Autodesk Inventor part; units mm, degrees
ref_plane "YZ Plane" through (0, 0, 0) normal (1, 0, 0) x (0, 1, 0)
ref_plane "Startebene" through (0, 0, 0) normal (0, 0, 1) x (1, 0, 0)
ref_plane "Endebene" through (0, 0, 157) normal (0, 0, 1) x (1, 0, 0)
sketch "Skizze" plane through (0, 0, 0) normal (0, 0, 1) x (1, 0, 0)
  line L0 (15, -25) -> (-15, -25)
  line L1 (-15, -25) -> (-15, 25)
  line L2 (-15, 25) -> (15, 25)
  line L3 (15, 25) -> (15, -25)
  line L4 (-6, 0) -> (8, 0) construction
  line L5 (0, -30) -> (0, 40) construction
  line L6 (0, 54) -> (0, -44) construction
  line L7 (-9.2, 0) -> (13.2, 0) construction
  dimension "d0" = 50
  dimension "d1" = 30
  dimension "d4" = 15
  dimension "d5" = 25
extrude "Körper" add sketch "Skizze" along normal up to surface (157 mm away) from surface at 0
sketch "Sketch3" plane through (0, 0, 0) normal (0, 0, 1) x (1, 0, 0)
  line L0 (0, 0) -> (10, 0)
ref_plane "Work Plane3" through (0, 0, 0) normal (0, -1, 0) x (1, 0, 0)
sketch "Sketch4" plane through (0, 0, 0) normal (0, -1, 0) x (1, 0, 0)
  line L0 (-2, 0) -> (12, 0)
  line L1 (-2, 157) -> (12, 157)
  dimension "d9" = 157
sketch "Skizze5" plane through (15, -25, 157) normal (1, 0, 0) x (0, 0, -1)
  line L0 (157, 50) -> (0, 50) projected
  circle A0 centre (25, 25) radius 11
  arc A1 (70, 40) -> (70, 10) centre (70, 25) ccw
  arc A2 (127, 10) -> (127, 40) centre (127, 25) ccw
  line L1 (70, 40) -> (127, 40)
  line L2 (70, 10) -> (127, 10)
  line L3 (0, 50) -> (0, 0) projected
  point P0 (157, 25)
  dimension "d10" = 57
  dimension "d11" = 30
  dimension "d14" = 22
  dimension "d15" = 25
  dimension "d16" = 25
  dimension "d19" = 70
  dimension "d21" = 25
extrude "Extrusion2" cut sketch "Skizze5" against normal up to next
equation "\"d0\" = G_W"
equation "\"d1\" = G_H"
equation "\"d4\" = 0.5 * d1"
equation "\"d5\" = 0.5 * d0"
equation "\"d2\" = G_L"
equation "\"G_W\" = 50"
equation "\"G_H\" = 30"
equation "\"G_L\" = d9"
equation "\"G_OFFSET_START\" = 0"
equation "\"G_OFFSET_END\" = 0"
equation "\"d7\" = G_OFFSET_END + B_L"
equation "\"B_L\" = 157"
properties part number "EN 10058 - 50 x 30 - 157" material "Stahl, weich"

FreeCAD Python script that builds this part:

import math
import FreeCAD as App
import Part
import Sketcher

V = App.Vector
Q = App.Units.Quantity


def add_polygon(sketch, points):
    """Adds a closed chain of lines whose ends are joined by coincident constraints."""
    first, n = sketch.GeometryCount, len(points)
    for a, b in zip(points, points[1:] + points[:1]):
        sketch.addGeometry(Part.LineSegment(App.Vector(*a, 0), App.Vector(*b, 0)), False)
    for i in range(n):
        sketch.addConstraint(Sketcher.Constraint("Coincident", first + i, 2, first + (i + 1) % n, 1))

doc = App.newDocument("Part")
body = doc.addObject("PartDesign::Body", "Body")

# Sketch on XY plane
sketch1 = doc.addObject("Sketcher::SketchObject", "Sketch")
body.addObject(sketch1)
sketch1.AttachmentSupport = (doc.XY_Plane, [""])
sketch1.MapMode = "FlatFace"
add_polygon(sketch1, [(-15, -25), (15, -25), (15, 25), (-15, 25)])  # lines 0-3
sketch1.addConstraint(Sketcher.Constraint("Horizontal", 0))
sketch1.addConstraint(Sketcher.Constraint("Vertical", 1))
sketch1.addConstraint(Sketcher.Constraint("Horizontal", 2))
sketch1.addConstraint(Sketcher.Constraint("Vertical", 3))
sketch1.addConstraint(Sketcher.Constraint("Symmetric", 0, 2, 2, 2, -1, 1))
sketch1.addConstraint(Sketcher.Constraint("DistanceX", 0, 1, 0, 2, Q("30 mm")))
sketch1.addConstraint(Sketcher.Constraint("DistanceY", 1, 1, 1, 2, Q("50 mm")))
pad1 = doc.addObject("PartDesign::Pad", "Pad")
body.addObject(pad1)
pad1.Profile = sketch1
pad1.Length = 157

# Sketch on YZ plane
sketch2 = doc.addObject("Sketcher::SketchObject", "Sketch001")
body.addObject(sketch2)
sketch2.AttachmentSupport = (doc.YZ_Plane, [""])
sketch2.MapMode = "FlatFace"
sketch2.AttachmentOffset = App.Placement(V(0, 0, 15), App.Rotation())
sketch2.addGeometry(Part.Circle(V(0, 132, 0), V(0, 0, 1), 11), False)
sketch2.addGeometry(Part.LineSegment(V(15, 30, 0), V(15, 87, 0)), False)
sketch2.addGeometry(Part.ArcOfCircle(Part.Circle(V(0, 87, 0), V(0, 0, 1), 15), math.radians(0), math.radians(180)), False)
sketch2.addGeometry(Part.LineSegment(V(-15, 87, 0), V(-15, 30, 0)), False)
sketch2.addGeometry(Part.ArcOfCircle(Part.Circle(V(0, 30, 0), V(0, 0, 1), 15), math.radians(180), math.radians(360)), False)
sketch2.addConstraint(Sketcher.Constraint("Tangent", 1, 2, 2, 1))
sketch2.addConstraint(Sketcher.Constraint("Tangent", 2, 2, 3, 1))
sketch2.addConstraint(Sketcher.Constraint("Tangent", 3, 2, 4, 1))
sketch2.addConstraint(Sketcher.Constraint("Tangent", 4, 2, 1, 1))
sketch2.addConstraint(Sketcher.Constraint("Vertical", 1))
sketch2.addConstraint(Sketcher.Constraint("Vertical", 3))
sketch2.addConstraint(Sketcher.Constraint("PointOnObject", 0, 3, -2))
sketch2.addConstraint(Sketcher.Constraint("PointOnObject", 2, 3, -2))
sketch2.addConstraint(Sketcher.Constraint("Diameter", 0, Q("22 mm")))
sketch2.addConstraint(Sketcher.Constraint("Radius", 2, Q("15 mm")))
sketch2.addConstraint(Sketcher.Constraint("DistanceY", 1, 1, 1, 2, Q("57 mm")))
sketch2.addConstraint(Sketcher.Constraint("DistanceY", -1, 1, 4, 3, Q("30 mm")))
sketch2.addConstraint(Sketcher.Constraint("DistanceY", -1, 1, 0, 3, Q("132 mm")))
pocket1 = doc.addObject("PartDesign::Pocket", "Pocket")
body.addObject(pocket1)
pocket1.Profile = sketch2
pocket1.Type = "UpToFirst"

doc.recompute()
